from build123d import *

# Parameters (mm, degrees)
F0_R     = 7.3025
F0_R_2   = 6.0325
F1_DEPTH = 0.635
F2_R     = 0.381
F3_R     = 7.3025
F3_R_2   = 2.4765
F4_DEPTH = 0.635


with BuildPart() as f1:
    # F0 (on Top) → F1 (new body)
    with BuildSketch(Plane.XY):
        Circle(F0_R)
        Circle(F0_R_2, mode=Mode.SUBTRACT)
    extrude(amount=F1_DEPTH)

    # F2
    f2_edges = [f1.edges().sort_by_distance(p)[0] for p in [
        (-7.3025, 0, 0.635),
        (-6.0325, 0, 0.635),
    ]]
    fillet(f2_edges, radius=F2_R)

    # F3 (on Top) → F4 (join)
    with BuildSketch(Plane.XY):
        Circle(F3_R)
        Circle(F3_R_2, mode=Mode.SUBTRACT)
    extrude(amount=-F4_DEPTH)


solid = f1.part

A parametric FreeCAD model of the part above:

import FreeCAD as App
import Part
import Sketcher
from FreeCAD import Vector
Q = App.Units.Quantity


def edges_at(feature, points):
    """Names of the edges that pass closest to the given points."""
    edges = feature.Shape.Edges
    near = lambda p: min(range(len(edges)), key=lambda i: edges[i].distToShape(Part.Vertex(*p))[0])
    return sorted({f"Edge{near(p) + 1}" for p in points})

doc = App.newDocument("Part")
body = doc.addObject("PartDesign::Body", "Body")

# Sketch on XY plane
sketch1 = doc.addObject("Sketcher::SketchObject", "Sketch")
body.addObject(sketch1)
sketch1.AttachmentSupport = (doc.XY_Plane, [""])
sketch1.MapMode = "FlatFace"
sketch1.addGeometry([
    Part.Circle(Vector(0, 0, 0), Vector(0, 0, 1), 7.3025),
    Part.Circle(Vector(0, 0, 0), Vector(0, 0, 1), 6.0325),
], False)
sketch1.addConstraint([
    Sketcher.Constraint("Coincident", 0, 3, -1, 1),
    Sketcher.Constraint("Coincident", 1, 3, -1, 1),
    Sketcher.Constraint("Diameter", 0, Q("0.575 in")),
    Sketcher.Constraint("Diameter", 1, Q("0.475 in")),
])
pad1 = doc.addObject("PartDesign::Pad", "Pad")
body.addObject(pad1)
pad1.Profile = sketch1
pad1.Length = Q("0.025 in")
doc.recompute()

fillet = doc.addObject("PartDesign::Fillet", "Fillet")
body.addObject(fillet)
fillet.Base = (pad1, edges_at(pad1, [(-7.303, 0, 0.635), (-6.032, 0, 0.635)]))
fillet.Radius = Q("0.015 in")

# Sketch on XY plane
sketch2 = doc.addObject("Sketcher::SketchObject", "Sketch001")
body.addObject(sketch2)
sketch2.AttachmentSupport = (doc.XY_Plane, [""])
sketch2.MapMode = "FlatFace"
sketch2.addGeometry([
    Part.Circle(Vector(0, 0, 0), Vector(0, 0, 1), 7.3025),
    Part.Circle(Vector(0, 0, 0), Vector(0, 0, 1), 2.4765),
], False)
sketch2.addConstraint([
    Sketcher.Constraint("Coincident", 0, 3, -1, 1),
    Sketcher.Constraint("Coincident", 1, 3, -1, 1),
    Sketcher.Constraint("Diameter", 0, Q("0.575 in")),
    Sketcher.Constraint("Diameter", 1, Q("0.195 in")),
])
pad2 = doc.addObject("PartDesign::Pad", "Pad001")
body.addObject(pad2)
pad2.Profile = sketch2
pad2.Length = Q("0.025 in")
pad2.Reversed = True

doc.recompute()
